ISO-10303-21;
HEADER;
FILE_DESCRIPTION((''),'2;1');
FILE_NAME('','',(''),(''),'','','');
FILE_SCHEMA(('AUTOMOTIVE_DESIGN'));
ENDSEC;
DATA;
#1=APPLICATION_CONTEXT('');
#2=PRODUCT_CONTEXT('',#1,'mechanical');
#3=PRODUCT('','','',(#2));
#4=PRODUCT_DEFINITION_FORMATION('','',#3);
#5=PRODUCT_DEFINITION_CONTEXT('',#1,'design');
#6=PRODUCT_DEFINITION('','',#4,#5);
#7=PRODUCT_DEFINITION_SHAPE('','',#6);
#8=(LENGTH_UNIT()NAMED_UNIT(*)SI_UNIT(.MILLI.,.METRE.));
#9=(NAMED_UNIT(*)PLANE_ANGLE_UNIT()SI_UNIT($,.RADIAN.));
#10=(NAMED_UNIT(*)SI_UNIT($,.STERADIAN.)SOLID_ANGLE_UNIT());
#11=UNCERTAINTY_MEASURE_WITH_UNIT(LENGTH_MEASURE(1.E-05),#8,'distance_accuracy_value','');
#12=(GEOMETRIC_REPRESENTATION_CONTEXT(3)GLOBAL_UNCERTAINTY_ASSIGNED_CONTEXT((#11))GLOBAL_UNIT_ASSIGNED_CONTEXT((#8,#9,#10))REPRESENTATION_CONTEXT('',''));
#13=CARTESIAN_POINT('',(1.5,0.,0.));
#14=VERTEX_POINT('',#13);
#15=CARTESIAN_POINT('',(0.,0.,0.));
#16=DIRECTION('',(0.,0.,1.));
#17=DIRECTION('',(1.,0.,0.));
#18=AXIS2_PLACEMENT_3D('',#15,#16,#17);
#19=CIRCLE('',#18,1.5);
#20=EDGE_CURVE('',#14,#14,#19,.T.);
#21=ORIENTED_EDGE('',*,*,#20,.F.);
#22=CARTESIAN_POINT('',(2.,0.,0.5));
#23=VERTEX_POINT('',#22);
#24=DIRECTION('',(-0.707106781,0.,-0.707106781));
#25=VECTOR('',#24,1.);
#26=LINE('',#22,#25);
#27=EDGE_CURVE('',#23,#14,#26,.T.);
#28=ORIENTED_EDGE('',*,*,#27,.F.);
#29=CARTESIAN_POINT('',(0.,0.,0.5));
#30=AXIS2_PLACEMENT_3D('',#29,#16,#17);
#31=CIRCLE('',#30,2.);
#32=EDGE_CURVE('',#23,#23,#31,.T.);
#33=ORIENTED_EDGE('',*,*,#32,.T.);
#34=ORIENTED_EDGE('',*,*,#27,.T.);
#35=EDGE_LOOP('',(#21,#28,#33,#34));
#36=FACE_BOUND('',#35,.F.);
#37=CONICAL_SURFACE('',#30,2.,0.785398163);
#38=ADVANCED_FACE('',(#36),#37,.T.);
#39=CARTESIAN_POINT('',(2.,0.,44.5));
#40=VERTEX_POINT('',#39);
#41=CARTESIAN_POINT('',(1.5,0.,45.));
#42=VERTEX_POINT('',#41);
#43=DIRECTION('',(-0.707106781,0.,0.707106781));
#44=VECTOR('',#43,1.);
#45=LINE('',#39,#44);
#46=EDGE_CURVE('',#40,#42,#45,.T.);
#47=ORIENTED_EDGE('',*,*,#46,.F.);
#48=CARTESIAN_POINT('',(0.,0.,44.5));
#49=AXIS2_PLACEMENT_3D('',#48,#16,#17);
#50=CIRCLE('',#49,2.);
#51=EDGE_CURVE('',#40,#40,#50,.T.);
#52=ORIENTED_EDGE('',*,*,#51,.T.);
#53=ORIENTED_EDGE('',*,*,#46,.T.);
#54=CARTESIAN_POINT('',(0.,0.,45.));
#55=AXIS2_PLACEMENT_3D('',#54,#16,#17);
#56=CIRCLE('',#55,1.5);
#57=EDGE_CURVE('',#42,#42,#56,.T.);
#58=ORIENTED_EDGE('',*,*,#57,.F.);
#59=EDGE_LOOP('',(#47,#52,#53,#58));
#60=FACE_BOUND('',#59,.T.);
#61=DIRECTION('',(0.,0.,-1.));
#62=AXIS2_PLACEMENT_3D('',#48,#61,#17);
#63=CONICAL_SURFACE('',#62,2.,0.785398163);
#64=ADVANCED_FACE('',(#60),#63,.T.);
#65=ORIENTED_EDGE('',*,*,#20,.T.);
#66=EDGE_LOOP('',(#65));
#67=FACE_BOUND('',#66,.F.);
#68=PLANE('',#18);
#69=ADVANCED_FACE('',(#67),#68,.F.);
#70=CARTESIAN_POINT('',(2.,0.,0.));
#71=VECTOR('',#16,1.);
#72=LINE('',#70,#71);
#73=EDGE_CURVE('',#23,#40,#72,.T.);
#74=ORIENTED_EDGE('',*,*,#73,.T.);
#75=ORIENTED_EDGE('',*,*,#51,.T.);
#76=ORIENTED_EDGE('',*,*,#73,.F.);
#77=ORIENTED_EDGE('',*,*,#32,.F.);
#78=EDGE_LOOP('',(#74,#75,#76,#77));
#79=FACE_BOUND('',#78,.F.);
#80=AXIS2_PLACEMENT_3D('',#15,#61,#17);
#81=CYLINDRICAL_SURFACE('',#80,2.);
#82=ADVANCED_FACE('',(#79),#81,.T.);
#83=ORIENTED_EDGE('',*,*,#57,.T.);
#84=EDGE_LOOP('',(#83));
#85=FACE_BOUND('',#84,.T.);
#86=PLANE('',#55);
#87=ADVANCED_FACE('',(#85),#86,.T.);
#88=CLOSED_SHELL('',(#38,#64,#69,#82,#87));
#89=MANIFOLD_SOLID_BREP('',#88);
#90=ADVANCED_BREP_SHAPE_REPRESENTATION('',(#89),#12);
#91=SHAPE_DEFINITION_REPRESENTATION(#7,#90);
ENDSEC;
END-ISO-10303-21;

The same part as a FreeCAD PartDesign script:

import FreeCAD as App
import Part
import Sketcher


def edges_at(feature, points):
    """Names of the edges that pass closest to the given points."""
    edges = feature.Shape.Edges
    near = lambda p: min(range(len(edges)), key=lambda i: edges[i].distToShape(Part.Vertex(*p))[0])
    return sorted({f"Edge{near(p) + 1}" for p in points})

doc = App.newDocument("Part")
body = doc.addObject("PartDesign::Body", "Body")

sketch1 = body.newObject("Sketcher::SketchObject", "Sketch")
sketch1.AttachmentSupport = (doc.getObject("XY_Plane"), [""])
sketch1.MapMode = "FlatFace"
sketch1.addGeometry(Part.Circle(App.Vector(0, 0, 0), App.Vector(0, 0, 1), 2), False)
sketch1.addConstraint([
    Sketcher.Constraint("Coincident", 0, 3, -1, 1),
    Sketcher.Constraint("Diameter", 0, 4.0),
])
pad1 = body.newObject("PartDesign::Pad", "Pad")
pad1.Profile = sketch1
pad1.Length = 45
doc.recompute()

chamfer = body.newObject("PartDesign::Chamfer", "Chamfer")
chamfer.Base = (pad1, edges_at(pad1, [(-2, 0, 0), (-2, 0, 45)]))
chamfer.Size = 0.5

doc.recompute()
